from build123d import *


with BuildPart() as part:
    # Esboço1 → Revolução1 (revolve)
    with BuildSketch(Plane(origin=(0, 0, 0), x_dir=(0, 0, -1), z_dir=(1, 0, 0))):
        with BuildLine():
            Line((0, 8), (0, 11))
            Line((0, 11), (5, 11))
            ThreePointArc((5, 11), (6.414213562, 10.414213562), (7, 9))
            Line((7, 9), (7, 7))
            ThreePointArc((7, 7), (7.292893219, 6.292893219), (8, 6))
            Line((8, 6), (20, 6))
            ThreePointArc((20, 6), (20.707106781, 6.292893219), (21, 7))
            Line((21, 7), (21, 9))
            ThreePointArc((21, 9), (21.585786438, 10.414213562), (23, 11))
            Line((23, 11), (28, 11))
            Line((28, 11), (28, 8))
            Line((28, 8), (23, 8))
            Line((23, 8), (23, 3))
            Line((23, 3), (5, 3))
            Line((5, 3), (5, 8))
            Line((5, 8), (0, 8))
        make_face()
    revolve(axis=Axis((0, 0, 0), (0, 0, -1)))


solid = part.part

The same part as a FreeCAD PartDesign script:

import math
import FreeCAD as App
import Part
import Sketcher

V = App.Vector
Q = App.Units.Quantity

doc = App.newDocument("Part")
params = doc.addObject("Spreadsheet::Sheet", "Params")
for row, (alias, value) in enumerate([
    ("sketch1_radius", "2 mm"),
    ("sketch1_radius2", "1 mm"),
    ("sketch1_width", "3 mm"),
    ("sketch1_width2", "5 mm"),
    ("sketch1_width3", "2 mm"),
    ("revolution_angle", "360 deg"),
], start=1):
    params.set(f"A{row}", alias)
    params.set(f"B{row}", "=" + value)
    params.setAlias(f"B{row}", alias)

body = doc.addObject("PartDesign::Body", "Body")

# Sketch on YZ plane
sketch1 = body.newObject("Sketcher::SketchObject", "Sketch")
sketch1.AttachmentSupport = (doc.getObject("YZ_Plane"), [""])
sketch1.MapMode = "FlatFace"
sketch1.addGeometry([
    Part.LineSegment(V(11, 0, 0), V(8, 0, 0)),  # 0
    Part.LineSegment(V(8, 0, 0), V(8, -5, 0)),  # 1
    Part.LineSegment(V(8, -5, 0), V(3, -5, 0)),  # 2
    Part.LineSegment(V(3, -5, 0), V(3, -23, 0)),  # 3
    Part.LineSegment(V(3, -23, 0), V(8, -23, 0)),  # 4
    Part.LineSegment(V(8, -23, 0), V(8, -28, 0)),  # 5
    Part.LineSegment(V(8, -28, 0), V(11, -28, 0)),  # 6
    Part.LineSegment(V(11, -28, 0), V(11, -23, 0)),  # 7
    Part.ArcOfCircle(Part.Circle(V(9, -23, 0), V(0, 0, 1), 2), math.radians(0), math.radians(90)),  # 8
    Part.LineSegment(V(9, -21, 0), V(7, -21, 0)),  # 9
    Part.ArcOfCircle(Part.Circle(V(7, -20, 0), V(0, 0, 1), 1), math.radians(-180), math.radians(-90)),  # 10
    Part.LineSegment(V(6, -20, 0), V(6, -8, 0)),  # 11
    Part.ArcOfCircle(Part.Circle(V(7, -8, 0), V(0, 0, 1), 1), math.radians(90), math.radians(180)),  # 12
    Part.LineSegment(V(7, -7, 0), V(9, -7, 0)),  # 13
    Part.ArcOfCircle(Part.Circle(V(9, -5, 0), V(0, 0, 1), 2), math.radians(-90), math.radians(0)),  # 14
    Part.LineSegment(V(11, -5, 0), V(11, 0, 0)),  # 15
], False)
sketch1.addConstraint([
    Sketcher.Constraint("Coincident", 0, 2, 1, 1),
    Sketcher.Constraint("Coincident", 1, 2, 2, 1),
    Sketcher.Constraint("Coincident", 2, 2, 3, 1),
    Sketcher.Constraint("Coincident", 3, 2, 4, 1),
    Sketcher.Constraint("Coincident", 4, 2, 5, 1),
    Sketcher.Constraint("Coincident", 5, 2, 6, 1),
    Sketcher.Constraint("Coincident", 6, 2, 7, 1),
    Sketcher.Constraint("Tangent", 7, 2, 8, 1),
    Sketcher.Constraint("Tangent", 8, 2, 9, 1),
    Sketcher.Constraint("Tangent", 9, 2, 10, 2),
    Sketcher.Constraint("Tangent", 10, 1, 11, 1),
    Sketcher.Constraint("Tangent", 11, 2, 12, 2),
    Sketcher.Constraint("Tangent", 12, 1, 13, 1),
    Sketcher.Constraint("Tangent", 13, 2, 14, 1),
    Sketcher.Constraint("Tangent", 14, 2, 15, 1),
    Sketcher.Constraint("Coincident", 15, 2, 0, 1),
    Sketcher.Constraint("Horizontal", 0),
    Sketcher.Constraint("Vertical", 1),
    Sketcher.Constraint("Horizontal", 2),
    Sketcher.Constraint("Vertical", 3),
    Sketcher.Constraint("Horizontal", 4),
    Sketcher.Constraint("Vertical", 5),
    Sketcher.Constraint("Horizontal", 6),
    Sketcher.Constraint("Vertical", 7),
    Sketcher.Constraint("Horizontal", 9),
    Sketcher.Constraint("Vertical", 11),
    Sketcher.Constraint("Horizontal", 13),
    Sketcher.Constraint("Vertical", 15),
    Sketcher.Constraint("Equal", 10, 12),
    Sketcher.Constraint("Equal", 8, 14),
    Sketcher.Constraint("PointOnObject", 0, 2, -1),
    Sketcher.Constraint("Horizontal", 14, 3, 1, 2),
    Sketcher.Constraint("Horizontal", 8, 3, 3, 2),
    Sketcher.Constraint("Vertical", 8, 3, 14, 3),
    Sketcher.Constraint("Vertical", 1, 2, 4, 2),
    Sketcher.Constraint("Equal", 4, 1),
    Sketcher.Constraint("Equal", 1, 5),
    Sketcher.Constraint("Radius", 8, Q("2 mm")),
    Sketcher.Constraint("Radius", 10, Q("1 mm")),
    Sketcher.Constraint("DistanceX", 0, 2, 0, 1, Q("3 mm")),
    Sketcher.Constraint("DistanceX", 2, 2, 2, 1, Q("5 mm")),
    Sketcher.Constraint("DistanceX", 9, 2, 9, 1, Q("2 mm")),
    Sketcher.Constraint("DistanceY", 3, 2, 3, 1, Q("18 mm")),
    Sketcher.Constraint("DistanceX", -1, 1, 8, 3, Q("9 mm")),
])
sketch1.setExpression("Constraints[37]", "Params.sketch1_radius")
sketch1.setExpression("Constraints[38]", "Params.sketch1_radius2")
sketch1.setExpression("Constraints[39]", "Params.sketch1_width")
sketch1.setExpression("Constraints[40]", "Params.sketch1_width2")
sketch1.setExpression("Constraints[41]", "Params.sketch1_width3")
revolution = body.newObject("PartDesign::Revolution", "Revolution")
revolution.Profile = sketch1
revolution.ReferenceAxis = (sketch1, ["V_Axis"])
revolution.setExpression("Angle", "Params.revolution_angle")

doc.recompute()
